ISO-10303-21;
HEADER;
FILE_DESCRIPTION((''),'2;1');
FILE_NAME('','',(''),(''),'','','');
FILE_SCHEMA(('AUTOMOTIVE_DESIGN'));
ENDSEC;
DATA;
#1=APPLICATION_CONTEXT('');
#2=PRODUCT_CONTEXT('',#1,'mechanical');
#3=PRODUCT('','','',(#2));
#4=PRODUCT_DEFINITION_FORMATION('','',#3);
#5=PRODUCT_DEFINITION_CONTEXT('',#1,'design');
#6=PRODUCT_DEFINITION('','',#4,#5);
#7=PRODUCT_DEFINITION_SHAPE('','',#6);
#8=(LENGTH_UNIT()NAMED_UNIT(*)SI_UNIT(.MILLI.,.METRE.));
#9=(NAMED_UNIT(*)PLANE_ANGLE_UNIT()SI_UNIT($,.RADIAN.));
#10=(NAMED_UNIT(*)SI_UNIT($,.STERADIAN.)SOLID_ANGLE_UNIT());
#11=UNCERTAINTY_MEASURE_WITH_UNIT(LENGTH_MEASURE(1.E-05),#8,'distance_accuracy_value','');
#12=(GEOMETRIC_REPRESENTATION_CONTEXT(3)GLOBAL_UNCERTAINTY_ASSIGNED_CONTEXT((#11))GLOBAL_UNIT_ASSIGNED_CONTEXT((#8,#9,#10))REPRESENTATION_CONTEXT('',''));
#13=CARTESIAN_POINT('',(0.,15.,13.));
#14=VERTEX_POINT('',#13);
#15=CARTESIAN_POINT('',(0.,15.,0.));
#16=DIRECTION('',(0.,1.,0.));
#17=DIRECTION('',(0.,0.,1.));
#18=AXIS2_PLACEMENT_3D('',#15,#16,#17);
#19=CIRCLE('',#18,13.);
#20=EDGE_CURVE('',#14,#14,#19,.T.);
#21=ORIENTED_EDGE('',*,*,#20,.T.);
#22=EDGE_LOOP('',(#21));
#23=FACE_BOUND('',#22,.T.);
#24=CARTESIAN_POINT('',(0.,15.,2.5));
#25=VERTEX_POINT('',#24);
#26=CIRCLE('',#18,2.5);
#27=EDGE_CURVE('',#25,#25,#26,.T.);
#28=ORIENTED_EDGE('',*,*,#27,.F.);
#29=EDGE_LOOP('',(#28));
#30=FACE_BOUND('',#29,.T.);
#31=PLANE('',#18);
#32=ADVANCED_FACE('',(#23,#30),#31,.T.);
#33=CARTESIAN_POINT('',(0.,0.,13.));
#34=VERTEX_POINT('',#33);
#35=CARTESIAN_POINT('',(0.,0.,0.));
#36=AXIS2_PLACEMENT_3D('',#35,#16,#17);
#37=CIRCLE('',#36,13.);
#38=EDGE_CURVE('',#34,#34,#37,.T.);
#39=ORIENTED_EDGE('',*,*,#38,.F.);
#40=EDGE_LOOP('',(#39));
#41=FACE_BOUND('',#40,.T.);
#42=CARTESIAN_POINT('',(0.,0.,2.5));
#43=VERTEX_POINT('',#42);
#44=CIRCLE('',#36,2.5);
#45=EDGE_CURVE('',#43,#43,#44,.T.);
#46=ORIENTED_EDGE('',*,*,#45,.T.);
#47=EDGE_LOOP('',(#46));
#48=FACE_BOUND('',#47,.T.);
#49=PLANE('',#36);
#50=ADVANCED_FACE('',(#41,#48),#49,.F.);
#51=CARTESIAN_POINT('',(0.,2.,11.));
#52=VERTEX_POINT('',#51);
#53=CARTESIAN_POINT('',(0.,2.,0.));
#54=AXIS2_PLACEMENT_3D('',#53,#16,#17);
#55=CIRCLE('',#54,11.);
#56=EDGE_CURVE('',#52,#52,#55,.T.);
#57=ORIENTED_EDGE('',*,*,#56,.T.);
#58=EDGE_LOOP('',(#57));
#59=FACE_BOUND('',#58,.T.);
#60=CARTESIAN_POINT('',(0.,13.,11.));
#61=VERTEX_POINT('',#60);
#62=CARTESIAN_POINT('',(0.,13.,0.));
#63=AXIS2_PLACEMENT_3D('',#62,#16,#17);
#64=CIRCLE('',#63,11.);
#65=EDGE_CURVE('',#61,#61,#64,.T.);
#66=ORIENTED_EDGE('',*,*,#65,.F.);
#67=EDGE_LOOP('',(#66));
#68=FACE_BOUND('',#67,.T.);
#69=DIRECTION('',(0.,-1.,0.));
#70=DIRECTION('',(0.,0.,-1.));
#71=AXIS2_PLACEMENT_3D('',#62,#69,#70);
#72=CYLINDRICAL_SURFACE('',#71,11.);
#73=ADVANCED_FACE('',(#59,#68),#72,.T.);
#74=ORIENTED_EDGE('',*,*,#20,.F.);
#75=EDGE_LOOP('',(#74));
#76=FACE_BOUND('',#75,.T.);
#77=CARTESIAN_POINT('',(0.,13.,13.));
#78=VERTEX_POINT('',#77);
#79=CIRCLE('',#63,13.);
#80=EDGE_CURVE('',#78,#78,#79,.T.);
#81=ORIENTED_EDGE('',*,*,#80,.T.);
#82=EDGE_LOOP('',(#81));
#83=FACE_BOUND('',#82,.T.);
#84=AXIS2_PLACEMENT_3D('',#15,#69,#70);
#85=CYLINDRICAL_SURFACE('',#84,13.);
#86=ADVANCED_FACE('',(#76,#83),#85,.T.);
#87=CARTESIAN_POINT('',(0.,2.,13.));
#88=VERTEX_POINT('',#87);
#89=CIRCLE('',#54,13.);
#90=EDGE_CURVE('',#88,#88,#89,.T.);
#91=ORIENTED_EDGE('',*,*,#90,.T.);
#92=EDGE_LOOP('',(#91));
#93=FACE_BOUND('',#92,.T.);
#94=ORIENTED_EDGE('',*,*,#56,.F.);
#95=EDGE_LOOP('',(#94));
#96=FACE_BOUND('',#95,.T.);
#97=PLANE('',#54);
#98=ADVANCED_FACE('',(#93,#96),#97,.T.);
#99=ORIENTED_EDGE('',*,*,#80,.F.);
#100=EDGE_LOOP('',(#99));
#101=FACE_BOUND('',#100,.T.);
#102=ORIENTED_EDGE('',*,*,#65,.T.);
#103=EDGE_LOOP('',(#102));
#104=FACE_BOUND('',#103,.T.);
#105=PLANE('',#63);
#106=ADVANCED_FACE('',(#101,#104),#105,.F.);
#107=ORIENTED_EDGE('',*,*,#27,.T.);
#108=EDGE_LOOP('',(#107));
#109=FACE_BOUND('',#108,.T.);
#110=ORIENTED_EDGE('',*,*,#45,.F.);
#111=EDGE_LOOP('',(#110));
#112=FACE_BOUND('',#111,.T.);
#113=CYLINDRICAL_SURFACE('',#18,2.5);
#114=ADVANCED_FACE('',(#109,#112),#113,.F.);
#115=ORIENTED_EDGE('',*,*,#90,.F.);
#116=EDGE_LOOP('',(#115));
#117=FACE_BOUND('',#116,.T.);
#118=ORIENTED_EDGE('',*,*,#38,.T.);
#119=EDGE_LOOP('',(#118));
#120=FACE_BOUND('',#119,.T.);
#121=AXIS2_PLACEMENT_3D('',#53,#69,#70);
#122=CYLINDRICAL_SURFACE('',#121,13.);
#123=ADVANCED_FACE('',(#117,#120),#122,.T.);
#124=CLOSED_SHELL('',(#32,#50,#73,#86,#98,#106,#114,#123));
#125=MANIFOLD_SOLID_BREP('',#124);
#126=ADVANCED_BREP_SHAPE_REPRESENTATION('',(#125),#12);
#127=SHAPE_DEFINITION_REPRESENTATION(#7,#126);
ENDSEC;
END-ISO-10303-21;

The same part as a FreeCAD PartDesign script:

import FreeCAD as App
import Part
import Sketcher

V = App.Vector
Q = App.Units.Quantity

doc = App.newDocument("Part")
body = doc.addObject("PartDesign::Body", "Body")

sketch1 = body.newObject("Sketcher::SketchObject", "Sketch")
sketch1.AttachmentSupport = (doc.getObject("XZ_Plane"), [""])
sketch1.MapMode = "FlatFace"
sketch1.addGeometry(Part.Circle(V(0, 0, 0), V(0, 0, 1), 13), False)
sketch1.addConstraint([
    Sketcher.Constraint("Coincident", 0, 3, -1, 1),
    Sketcher.Constraint("Diameter", 0, Q("26 mm")),
])
pad1 = body.newObject("PartDesign::Pad", "Pad")
pad1.Profile = sketch1
pad1.Length = 2
pad1.Reversed = True

sketch2 = body.newObject("Sketcher::SketchObject", "Sketch001")
sketch2.AttachmentSupport = (doc.getObject("XZ_Plane"), [""])
sketch2.MapMode = "FlatFace"
sketch2.AttachmentOffset = App.Placement(V(0, 0, -2), App.Rotation())
sketch2.addGeometry(Part.Circle(V(0, 0, 0), V(0, 0, 1), 11), False)
sketch2.addConstraint([
    Sketcher.Constraint("Coincident", 0, 3, -1, 1),
    Sketcher.Constraint("Diameter", 0, Q("22 mm")),
])
pad2 = body.newObject("PartDesign::Pad", "Pad001")
pad2.Profile = sketch2
pad2.Length = 11
pad2.Reversed = True

sketch3 = body.newObject("Sketcher::SketchObject", "Sketch002")
sketch3.AttachmentSupport = (doc.getObject("XZ_Plane"), [""])
sketch3.MapMode = "FlatFace"
sketch3.AttachmentOffset = App.Placement(V(0, 0, -13), App.Rotation())
sketch3.addGeometry(Part.Circle(V(0, 0, 0), V(0, 0, 1), 13), False)
sketch3.addConstraint([
    Sketcher.Constraint("Coincident", 0, 3, -1, 1),
    Sketcher.Constraint("Diameter", 0, Q("26 mm")),
])
pad3 = body.newObject("PartDesign::Pad", "Pad002")
pad3.Profile = sketch3
pad3.Length = 2
pad3.Reversed = True

sketch4 = body.newObject("Sketcher::SketchObject", "Sketch003")
sketch4.AttachmentSupport = (doc.getObject("XZ_Plane"), [""])
sketch4.MapMode = "FlatFace"
sketch4.AttachmentOffset = App.Placement(V(0, 0, -15), App.Rotation())
sketch4.addGeometry(Part.Circle(V(0, 0, 0), V(0, 0, 1), 2.5), False)
sketch4.addConstraint([
    Sketcher.Constraint("Coincident", 0, 3, -1, 1),
    Sketcher.Constraint("Diameter", 0, Q("5 mm")),
])
doc.recompute()
hole = body.newObject("PartDesign::Hole", "Hole")
hole.Profile = sketch4
hole.ThreadType = "None"
hole.Diameter = 5
hole.DepthType = "ThroughAll"
hole.Reversed = True

doc.recompute()
